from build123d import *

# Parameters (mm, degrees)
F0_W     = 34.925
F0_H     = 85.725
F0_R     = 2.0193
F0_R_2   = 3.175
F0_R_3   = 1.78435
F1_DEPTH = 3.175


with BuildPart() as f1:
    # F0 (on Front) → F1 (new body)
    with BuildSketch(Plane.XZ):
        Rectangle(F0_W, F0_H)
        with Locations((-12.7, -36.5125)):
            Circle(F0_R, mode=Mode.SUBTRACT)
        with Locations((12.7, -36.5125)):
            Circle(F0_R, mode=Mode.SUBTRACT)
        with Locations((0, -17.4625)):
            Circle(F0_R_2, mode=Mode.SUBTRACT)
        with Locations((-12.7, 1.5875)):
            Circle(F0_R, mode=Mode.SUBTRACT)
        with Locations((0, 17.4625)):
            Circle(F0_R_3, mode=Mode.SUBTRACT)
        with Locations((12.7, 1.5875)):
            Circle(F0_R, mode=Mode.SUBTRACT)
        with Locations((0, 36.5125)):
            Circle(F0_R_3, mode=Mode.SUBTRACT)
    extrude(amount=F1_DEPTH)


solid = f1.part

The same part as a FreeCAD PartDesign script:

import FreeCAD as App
import Part
import Sketcher
from FreeCAD import Vector
Q = App.Units.Quantity

doc = App.newDocument("Part")
body = doc.addObject("PartDesign::Body", "Body")

sketch1 = body.newObject("Sketcher::SketchObject", "Sketch")
sketch1.AttachmentSupport = (doc.getObject("XZ_Plane"), [""])
sketch1.MapMode = "FlatFace"
sketch1.addGeometry([
    Part.LineSegment(Vector(-17.5, 42.9, 0), Vector(-17.5, -42.9, 0)),
    Part.LineSegment(Vector(-17.5, -42.9, 0), Vector(17.5, -42.9, 0)),
    Part.LineSegment(Vector(17.5, -42.9, 0), Vector(17.5, 42.9, 0)),
    Part.LineSegment(Vector(17.5, 42.9, 0), Vector(-17.5, 42.9, 0)),
    Part.Circle(Vector(-12.7, -36.5, 0), Vector(0, 0, 1), 2),
    Part.Circle(Vector(12.7, -36.5, 0), Vector(0, 0, 1), 2),
    Part.Circle(Vector(0, -17.5, 0), Vector(0, 0, 1), 3.2),
    Part.Circle(Vector(-12.7, 1.6, 0), Vector(0, 0, 1), 2),
    Part.Circle(Vector(0, 17.5, 0), Vector(0, 0, 1), 1.8),
    Part.Circle(Vector(12.7, 1.6, 0), Vector(0, 0, 1), 2),
    Part.Circle(Vector(0, 36.5, 0), Vector(0, 0, 1), 1.8),
], False)
sketch1.addConstraint([
    Sketcher.Constraint("Coincident", 0, 2, 1, 1),
    Sketcher.Constraint("Coincident", 1, 2, 2, 1),
    Sketcher.Constraint("Coincident", 2, 2, 3, 1),
    Sketcher.Constraint("Coincident", 3, 2, 0, 1),
    Sketcher.Constraint("Vertical", 0),
    Sketcher.Constraint("Horizontal", 1),
    Sketcher.Constraint("Vertical", 2),
    Sketcher.Constraint("Horizontal", 3),
    Sketcher.Constraint("Equal", 4, 5),
    Sketcher.Constraint("Equal", 5, 7),
    Sketcher.Constraint("Equal", 7, 9),
    Sketcher.Constraint("Equal", 8, 10),
    Sketcher.Constraint("Symmetric", 6, 3, 8, 3, -1, 1),
    Sketcher.Constraint("Symmetric", 0, 2, 2, 2, -1, 1),
    Sketcher.Constraint("Symmetric", 4, 3, 5, 3, -2),
    Sketcher.Constraint("Symmetric", 7, 3, 9, 3, -2),
    Sketcher.Constraint("PointOnObject", 6, 3, -2),
    Sketcher.Constraint("PointOnObject", 10, 3, -2),
    Sketcher.Constraint("Vertical", 4, 3, 7, 3),
    Sketcher.Constraint("Diameter", 6, Q("0.25 in")),
    Sketcher.Constraint("Diameter", 4, Q("0.159 in")),
    Sketcher.Constraint("DistanceX", 4, 3, 5, 3, Q("1 in")),
    Sketcher.Constraint("DistanceY", 0, 2, 6, 3, Q("1 in")),
    Sketcher.Constraint("Diameter", 8, Q("0.1405 in")),
    Sketcher.Constraint("DistanceY", 4, 3, 7, 3, Q("1.5 in")),
    Sketcher.Constraint("DistanceX", 1, 1, 1, 2, Q("1.375 in")),
    Sketcher.Constraint("DistanceY", 0, 2, 0, 1, Q("3.375 in")),
    Sketcher.Constraint("DistanceY", 4, 3, 6, 3, Q("0.75 in")),
    Sketcher.Constraint("DistanceY", 8, 3, 10, 3, Q("0.75 in")),
])
pad1 = body.newObject("PartDesign::Pad", "Pad")
pad1.Profile = sketch1
pad1.Length = Q("0.125 in")

doc.recompute()
